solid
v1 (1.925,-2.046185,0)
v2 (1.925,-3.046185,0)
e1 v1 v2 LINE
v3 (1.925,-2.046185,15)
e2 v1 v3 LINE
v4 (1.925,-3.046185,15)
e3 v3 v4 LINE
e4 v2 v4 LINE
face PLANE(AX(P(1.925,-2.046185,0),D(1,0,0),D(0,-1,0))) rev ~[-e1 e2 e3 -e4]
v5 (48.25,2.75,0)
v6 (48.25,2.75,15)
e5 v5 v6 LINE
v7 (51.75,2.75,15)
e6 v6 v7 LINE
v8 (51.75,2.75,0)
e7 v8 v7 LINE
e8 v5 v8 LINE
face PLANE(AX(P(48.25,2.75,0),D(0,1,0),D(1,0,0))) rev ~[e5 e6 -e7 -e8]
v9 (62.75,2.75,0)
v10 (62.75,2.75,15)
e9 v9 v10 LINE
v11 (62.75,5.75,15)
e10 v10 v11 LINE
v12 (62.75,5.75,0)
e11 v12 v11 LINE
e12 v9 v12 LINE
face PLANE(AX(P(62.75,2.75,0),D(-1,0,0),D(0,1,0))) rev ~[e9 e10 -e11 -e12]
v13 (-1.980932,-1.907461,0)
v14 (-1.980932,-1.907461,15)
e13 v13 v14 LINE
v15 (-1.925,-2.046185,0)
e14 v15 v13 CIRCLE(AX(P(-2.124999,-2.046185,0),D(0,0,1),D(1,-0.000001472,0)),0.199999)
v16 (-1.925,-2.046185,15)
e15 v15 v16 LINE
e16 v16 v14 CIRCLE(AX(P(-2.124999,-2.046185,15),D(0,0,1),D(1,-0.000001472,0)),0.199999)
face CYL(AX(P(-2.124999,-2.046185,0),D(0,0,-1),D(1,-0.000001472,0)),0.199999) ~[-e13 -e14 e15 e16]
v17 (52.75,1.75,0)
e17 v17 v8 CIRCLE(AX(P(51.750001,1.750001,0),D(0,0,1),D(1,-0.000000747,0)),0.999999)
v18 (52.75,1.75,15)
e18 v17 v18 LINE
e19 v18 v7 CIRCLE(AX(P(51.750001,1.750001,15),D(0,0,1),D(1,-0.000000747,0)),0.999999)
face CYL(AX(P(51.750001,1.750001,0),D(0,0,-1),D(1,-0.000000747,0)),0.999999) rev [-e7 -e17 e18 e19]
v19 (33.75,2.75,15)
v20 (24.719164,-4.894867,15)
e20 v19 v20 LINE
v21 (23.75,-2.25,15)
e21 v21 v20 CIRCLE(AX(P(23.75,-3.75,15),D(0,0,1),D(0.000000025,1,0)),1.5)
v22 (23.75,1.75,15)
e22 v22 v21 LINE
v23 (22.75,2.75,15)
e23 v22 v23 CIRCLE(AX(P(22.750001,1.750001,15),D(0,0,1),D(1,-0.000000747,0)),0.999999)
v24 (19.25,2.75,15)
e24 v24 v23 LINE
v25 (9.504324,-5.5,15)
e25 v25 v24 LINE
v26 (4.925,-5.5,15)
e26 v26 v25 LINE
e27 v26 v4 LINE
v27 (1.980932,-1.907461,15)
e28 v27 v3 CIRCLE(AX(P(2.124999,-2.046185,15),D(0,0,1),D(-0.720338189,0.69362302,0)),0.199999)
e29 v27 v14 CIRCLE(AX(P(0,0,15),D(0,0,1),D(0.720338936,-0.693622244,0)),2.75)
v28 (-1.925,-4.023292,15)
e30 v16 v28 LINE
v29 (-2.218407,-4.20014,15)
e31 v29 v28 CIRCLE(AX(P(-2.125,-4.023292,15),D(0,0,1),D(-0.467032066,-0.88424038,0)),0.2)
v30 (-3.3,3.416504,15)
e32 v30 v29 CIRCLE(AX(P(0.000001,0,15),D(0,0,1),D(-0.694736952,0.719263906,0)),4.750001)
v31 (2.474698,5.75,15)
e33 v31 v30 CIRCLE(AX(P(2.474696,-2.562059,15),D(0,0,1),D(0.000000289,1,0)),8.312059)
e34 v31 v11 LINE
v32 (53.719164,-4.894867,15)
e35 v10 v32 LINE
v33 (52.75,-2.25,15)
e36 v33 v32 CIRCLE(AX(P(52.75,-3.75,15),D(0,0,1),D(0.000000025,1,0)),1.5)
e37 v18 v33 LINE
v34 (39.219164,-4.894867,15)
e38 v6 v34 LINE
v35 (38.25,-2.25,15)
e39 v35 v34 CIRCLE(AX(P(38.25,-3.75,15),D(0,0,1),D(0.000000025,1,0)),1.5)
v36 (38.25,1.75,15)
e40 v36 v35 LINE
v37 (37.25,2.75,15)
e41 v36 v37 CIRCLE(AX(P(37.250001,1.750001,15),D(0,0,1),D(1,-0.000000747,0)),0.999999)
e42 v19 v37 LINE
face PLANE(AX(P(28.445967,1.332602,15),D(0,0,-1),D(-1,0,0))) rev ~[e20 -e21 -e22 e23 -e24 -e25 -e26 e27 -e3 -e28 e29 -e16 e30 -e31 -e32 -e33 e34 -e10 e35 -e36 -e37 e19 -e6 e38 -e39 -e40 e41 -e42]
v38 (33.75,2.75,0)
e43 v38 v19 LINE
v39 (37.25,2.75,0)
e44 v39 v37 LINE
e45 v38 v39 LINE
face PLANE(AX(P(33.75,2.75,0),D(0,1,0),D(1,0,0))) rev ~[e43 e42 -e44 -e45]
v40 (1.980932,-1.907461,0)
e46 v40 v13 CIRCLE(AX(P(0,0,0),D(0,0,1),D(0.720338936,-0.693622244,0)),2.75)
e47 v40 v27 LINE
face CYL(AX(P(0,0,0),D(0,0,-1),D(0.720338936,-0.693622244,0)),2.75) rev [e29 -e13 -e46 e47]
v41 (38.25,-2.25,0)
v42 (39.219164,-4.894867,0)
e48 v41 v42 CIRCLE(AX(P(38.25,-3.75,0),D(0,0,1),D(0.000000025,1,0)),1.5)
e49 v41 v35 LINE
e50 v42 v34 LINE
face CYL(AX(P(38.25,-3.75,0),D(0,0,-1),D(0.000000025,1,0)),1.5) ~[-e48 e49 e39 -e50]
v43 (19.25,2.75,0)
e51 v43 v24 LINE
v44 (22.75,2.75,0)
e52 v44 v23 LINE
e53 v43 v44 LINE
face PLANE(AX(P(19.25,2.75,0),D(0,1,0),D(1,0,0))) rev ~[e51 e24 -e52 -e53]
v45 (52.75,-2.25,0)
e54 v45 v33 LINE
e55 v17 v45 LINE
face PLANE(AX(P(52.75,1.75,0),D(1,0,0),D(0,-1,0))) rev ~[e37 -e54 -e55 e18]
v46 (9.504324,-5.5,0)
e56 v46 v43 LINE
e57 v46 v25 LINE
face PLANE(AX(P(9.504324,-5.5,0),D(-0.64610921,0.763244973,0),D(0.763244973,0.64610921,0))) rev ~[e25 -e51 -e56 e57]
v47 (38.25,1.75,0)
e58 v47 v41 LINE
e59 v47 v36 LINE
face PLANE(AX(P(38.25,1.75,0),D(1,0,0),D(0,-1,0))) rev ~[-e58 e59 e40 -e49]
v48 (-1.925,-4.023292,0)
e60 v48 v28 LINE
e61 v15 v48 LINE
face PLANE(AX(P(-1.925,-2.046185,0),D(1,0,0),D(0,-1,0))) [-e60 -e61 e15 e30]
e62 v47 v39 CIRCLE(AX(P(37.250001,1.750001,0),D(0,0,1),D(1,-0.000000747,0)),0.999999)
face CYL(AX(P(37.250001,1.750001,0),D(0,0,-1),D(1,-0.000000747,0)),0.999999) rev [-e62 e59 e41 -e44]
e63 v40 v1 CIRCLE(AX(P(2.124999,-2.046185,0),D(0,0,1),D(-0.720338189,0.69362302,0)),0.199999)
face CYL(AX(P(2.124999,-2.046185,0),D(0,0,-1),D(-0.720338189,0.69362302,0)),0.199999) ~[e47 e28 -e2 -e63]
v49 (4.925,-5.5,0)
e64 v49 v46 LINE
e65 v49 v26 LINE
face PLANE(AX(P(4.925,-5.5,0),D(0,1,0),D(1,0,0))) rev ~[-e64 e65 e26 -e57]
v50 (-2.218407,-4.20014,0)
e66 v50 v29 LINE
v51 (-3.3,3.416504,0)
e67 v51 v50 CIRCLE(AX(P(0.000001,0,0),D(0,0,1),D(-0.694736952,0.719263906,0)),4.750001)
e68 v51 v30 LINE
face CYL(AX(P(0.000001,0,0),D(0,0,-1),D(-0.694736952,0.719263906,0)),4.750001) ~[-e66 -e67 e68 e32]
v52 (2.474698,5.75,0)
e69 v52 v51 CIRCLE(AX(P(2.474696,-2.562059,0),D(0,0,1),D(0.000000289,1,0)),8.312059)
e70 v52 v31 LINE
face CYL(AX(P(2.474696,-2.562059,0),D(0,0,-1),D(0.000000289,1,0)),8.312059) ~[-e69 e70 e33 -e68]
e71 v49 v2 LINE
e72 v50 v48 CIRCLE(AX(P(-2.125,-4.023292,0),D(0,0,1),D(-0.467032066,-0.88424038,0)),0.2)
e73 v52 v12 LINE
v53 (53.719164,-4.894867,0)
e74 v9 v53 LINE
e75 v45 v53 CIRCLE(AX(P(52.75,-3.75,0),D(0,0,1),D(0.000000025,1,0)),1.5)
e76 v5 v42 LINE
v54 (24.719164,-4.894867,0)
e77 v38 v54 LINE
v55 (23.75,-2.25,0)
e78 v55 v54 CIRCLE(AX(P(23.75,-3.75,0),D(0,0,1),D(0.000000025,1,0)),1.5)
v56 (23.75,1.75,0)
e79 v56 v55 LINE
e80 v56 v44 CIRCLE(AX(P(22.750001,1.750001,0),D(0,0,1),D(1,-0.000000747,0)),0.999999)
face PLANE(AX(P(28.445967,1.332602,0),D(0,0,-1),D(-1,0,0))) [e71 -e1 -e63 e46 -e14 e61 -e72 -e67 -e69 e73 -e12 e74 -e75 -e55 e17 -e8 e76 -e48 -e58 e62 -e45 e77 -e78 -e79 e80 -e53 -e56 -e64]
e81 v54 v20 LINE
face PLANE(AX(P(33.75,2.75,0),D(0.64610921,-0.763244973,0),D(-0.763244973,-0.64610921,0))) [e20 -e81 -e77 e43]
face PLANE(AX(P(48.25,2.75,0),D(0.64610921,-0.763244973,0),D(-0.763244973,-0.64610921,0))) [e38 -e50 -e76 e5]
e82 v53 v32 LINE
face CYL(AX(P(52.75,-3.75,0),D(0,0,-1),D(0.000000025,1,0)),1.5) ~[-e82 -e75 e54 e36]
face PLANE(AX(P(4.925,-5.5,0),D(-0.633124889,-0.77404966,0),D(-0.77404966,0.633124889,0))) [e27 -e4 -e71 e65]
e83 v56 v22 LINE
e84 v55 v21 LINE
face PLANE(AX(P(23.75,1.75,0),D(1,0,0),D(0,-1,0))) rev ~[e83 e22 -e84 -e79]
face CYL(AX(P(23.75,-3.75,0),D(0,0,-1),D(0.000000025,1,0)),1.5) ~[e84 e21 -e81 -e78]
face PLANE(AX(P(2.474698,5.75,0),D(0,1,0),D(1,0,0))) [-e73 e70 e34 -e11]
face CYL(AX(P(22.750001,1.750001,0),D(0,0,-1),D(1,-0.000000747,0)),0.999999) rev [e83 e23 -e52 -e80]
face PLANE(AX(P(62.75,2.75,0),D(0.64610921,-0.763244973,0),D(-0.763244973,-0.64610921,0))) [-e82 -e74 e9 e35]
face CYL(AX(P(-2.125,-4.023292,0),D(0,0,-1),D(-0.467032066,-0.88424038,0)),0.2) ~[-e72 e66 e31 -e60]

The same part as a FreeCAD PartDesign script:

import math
import FreeCAD as App
import Part
import Sketcher
from FreeCAD import Vector
Q = App.Units.Quantity

doc = App.newDocument("Part")
body = doc.addObject("PartDesign::Body", "Body")

# Sketch on XY plane
sketch1 = body.newObject("Sketcher::SketchObject", "Sketch")
sketch1.AttachmentSupport = (doc.getObject("XY_Plane"), [""])
sketch1.MapMode = "FlatFace"
sketch1.addGeometry([
    Part.ArcOfCircle(Part.Circle(Vector(0, 0, 0), Vector(0, 0, 1), 2.75), math.radians(-44), math.radians(224)),  # 0
    Part.ArcOfCircle(Part.Circle(Vector(2.12, -2.05, 0), Vector(0, 0, 1), 0.2), math.radians(136), math.radians(180)),  # 1
    Part.LineSegment(Vector(1.93, -2.05, 0), Vector(1.93, -3.05, 0)),  # 2
    Part.LineSegment(Vector(1.93, -3.05, 0), Vector(4.92, -5.5, 0)),  # 3
    Part.LineSegment(Vector(4.92, -5.5, 0), Vector(9.5, -5.5, 0)),  # 4
    Part.LineSegment(Vector(9.5, -5.5, 0), Vector(19.25, 2.75, 0)),  # 5
    Part.LineSegment(Vector(19.25, 2.75, 0), Vector(22.75, 2.75, 0)),  # 6
    Part.ArcOfCircle(Part.Circle(Vector(22.75, 1.75, 0), Vector(0, 0, 1), 1), math.radians(0), math.radians(90)),  # 7
    Part.LineSegment(Vector(23.75, 1.75, 0), Vector(23.75, -2.25, 0)),  # 8
    Part.ArcOfCircle(Part.Circle(Vector(23.75, -3.75, 0), Vector(0, 0, 1), 1.5), math.radians(90), math.radians(310)),  # 9
    Part.LineSegment(Vector(24.72, -4.89, 0), Vector(33.75, 2.75, 0)),  # 10
    Part.LineSegment(Vector(33.75, 2.75, 0), Vector(37.25, 2.75, 0)),  # 11
    Part.ArcOfCircle(Part.Circle(Vector(37.25, 1.75, 0), Vector(0, 0, 1), 1), math.radians(0), math.radians(90)),  # 12
    Part.LineSegment(Vector(38.25, 1.75, 0), Vector(38.25, -2.25, 0)),  # 13
    Part.ArcOfCircle(Part.Circle(Vector(38.25, -3.75, 0), Vector(0, 0, 1), 1.5), math.radians(90), math.radians(310)),  # 14
    Part.LineSegment(Vector(39.22, -4.89, 0), Vector(48.25, 2.75, 0)),  # 15
    Part.LineSegment(Vector(48.25, 2.75, 0), Vector(51.75, 2.75, 0)),  # 16
    Part.ArcOfCircle(Part.Circle(Vector(51.75, 1.75, 0), Vector(0, 0, 1), 1), math.radians(0), math.radians(90)),  # 17
    Part.LineSegment(Vector(52.75, 1.75, 0), Vector(52.75, -2.25, 0)),  # 18
    Part.ArcOfCircle(Part.Circle(Vector(52.75, -3.75, 0), Vector(0, 0, 1), 1.5), math.radians(90), math.radians(310)),  # 19
    Part.LineSegment(Vector(53.72, -4.89, 0), Vector(62.75, 2.75, 0)),  # 20
    Part.LineSegment(Vector(62.75, 2.75, 0), Vector(62.75, 5.75, 0)),  # 21
    Part.LineSegment(Vector(62.75, 5.75, 0), Vector(2.47, 5.75, 0)),  # 22
    Part.ArcOfCircle(Part.Circle(Vector(2.47, -2.56, 0), Vector(0, 0, 1), 8.31), math.radians(90), math.radians(134)),  # 23
    Part.ArcOfCircle(Part.Circle(Vector(0, 0, 0), Vector(0, 0, 1), 4.75), math.radians(134), math.radians(242)),  # 24
    Part.ArcOfCircle(Part.Circle(Vector(-2.13, -4.02, 0), Vector(0, 0, 1), 0.2), math.radians(-118), math.radians(0)),  # 25
    Part.LineSegment(Vector(-1.93, -4.02, 0), Vector(-1.93, -2.05, 0)),  # 26
    Part.ArcOfCircle(Part.Circle(Vector(-2.12, -2.05, 0), Vector(0, 0, 1), 0.2), math.radians(0), math.radians(44)),  # 27
], False)
sketch1.addConstraint([
    Sketcher.Constraint("Tangent", 0, 1, 1, 1),
    Sketcher.Constraint("Tangent", 1, 2, 2, 1),
    Sketcher.Constraint("Coincident", 2, 2, 3, 1),
    Sketcher.Constraint("Coincident", 3, 2, 4, 1),
    Sketcher.Constraint("Coincident", 4, 2, 5, 1),
    Sketcher.Constraint("Coincident", 5, 2, 6, 1),
    Sketcher.Constraint("Tangent", 6, 2, 7, 2),
    Sketcher.Constraint("Tangent", 7, 1, 8, 1),
    Sketcher.Constraint("Coincident", 8, 2, 9, 1),
    Sketcher.Constraint("Tangent", 9, 2, 10, 1),
    Sketcher.Constraint("Coincident", 10, 2, 11, 1),
    Sketcher.Constraint("Tangent", 11, 2, 12, 2),
    Sketcher.Constraint("Tangent", 12, 1, 13, 1),
    Sketcher.Constraint("Coincident", 13, 2, 14, 1),
    Sketcher.Constraint("Tangent", 14, 2, 15, 1),
    Sketcher.Constraint("Coincident", 15, 2, 16, 1),
    Sketcher.Constraint("Tangent", 16, 2, 17, 2),
    Sketcher.Constraint("Tangent", 17, 1, 18, 1),
    Sketcher.Constraint("Coincident", 18, 2, 19, 1),
    Sketcher.Constraint("Tangent", 19, 2, 20, 1),
    Sketcher.Constraint("Coincident", 20, 2, 21, 1),
    Sketcher.Constraint("Coincident", 21, 2, 22, 1),
    Sketcher.Constraint("Tangent", 22, 2, 23, 1),
    Sketcher.Constraint("Tangent", 23, 2, 24, 1),
    Sketcher.Constraint("Tangent", 24, 2, 25, 1),
    Sketcher.Constraint("Coincident", 25, 2, 26, 1),
    Sketcher.Constraint("Tangent", 26, 2, 27, 1),
    Sketcher.Constraint("Tangent", 27, 2, 0, 2),
    Sketcher.Constraint("Vertical", 2),
    Sketcher.Constraint("Horizontal", 4),
    Sketcher.Constraint("Horizontal", 6),
    Sketcher.Constraint("Vertical", 8),
    Sketcher.Constraint("Horizontal", 11),
    Sketcher.Constraint("Vertical", 13),
    Sketcher.Constraint("Horizontal", 16),
    Sketcher.Constraint("Vertical", 18),
    Sketcher.Constraint("Vertical", 21),
    Sketcher.Constraint("Horizontal", 22),
    Sketcher.Constraint("Vertical", 26),
    Sketcher.Constraint("Coincident", 0, 3, -1, 1),
    Sketcher.Constraint("Coincident", 24, 3, -1, 1),
    Sketcher.Constraint("Equal", 7, 12),
    Sketcher.Constraint("Equal", 9, 14),
    Sketcher.Constraint("Equal", 12, 17),
    Sketcher.Constraint("Equal", 14, 19),
    Sketcher.Constraint("Equal", 1, 25),
    Sketcher.Constraint("Equal", 25, 27),
    Sketcher.Constraint("Parallel", 5, 10),
    Sketcher.Constraint("Parallel", 10, 15),
    Sketcher.Constraint("Parallel", 15, 20),
    Sketcher.Constraint("Horizontal", 7, 3, 12, 3),
    Sketcher.Constraint("Horizontal", 9, 3, 14, 3),
    Sketcher.Constraint("Horizontal", 12, 3, 17, 3),
    Sketcher.Constraint("Horizontal", 14, 3, 19, 3),
    Sketcher.Constraint("Horizontal", 1, 3, 27, 3),
    Sketcher.Constraint("Horizontal", 16, 2, 20, 2),
    Sketcher.Constraint("Vertical", 9, 3, 7, 1),
    Sketcher.Constraint("Vertical", 14, 3, 12, 1),
    Sketcher.Constraint("Vertical", 19, 3, 17, 1),
    Sketcher.Constraint("Equal", 6, 11),
    Sketcher.Constraint("Equal", 11, 16),
    Sketcher.Constraint("Radius", 7, Q("0.999999 mm")),
    Sketcher.Constraint("Radius", 1, Q("0.199999 mm")),
    Sketcher.Constraint("Radius", 9, Q("1.5 mm")),
    Sketcher.Constraint("DistanceY", 2, 2, 2, 1, Q("1 mm")),
    Sketcher.Constraint("DistanceY", 8, 2, 8, 1, Q("4 mm")),
    Sketcher.Constraint("DistanceY", 21, 1, 21, 2, Q("3 mm")),
    Sketcher.Constraint("Radius", 0, Q("2.75 mm")),
    Sketcher.Constraint("Radius", 24, Q("4.750001 mm")),
    Sketcher.Constraint("DistanceX", 6, 1, 6, 2, Q("3.5 mm")),
    Sketcher.Constraint("DistanceX", 9, 3, 17, 3, Q("28.000001 mm")),
    Sketcher.Constraint("DistanceX", 2, 2, 3, 2, Q("3 mm")),
    Sketcher.Constraint("DistanceY", 3, 2, -1, 1, Q("5.5 mm")),
    Sketcher.Constraint("DistanceX", 23, 2, -1, 1, Q("3.3 mm")),
    Sketcher.Constraint("DistanceX", -1, 1, 7, 3, Q("22.750001 mm")),
    Sketcher.Constraint("DistanceY", -1, 1, 7, 3, Q("1.750001 mm")),
    Sketcher.Constraint("DistanceX", 25, 3, 1, 3, Q("4.249999 mm")),
    Sketcher.Constraint("DistanceY", 26, 1, 26, 2, Q("1.977107 mm")),
])
pad1 = body.newObject("PartDesign::Pad", "Pad")
pad1.Profile = sketch1
pad1.Length = 15

doc.recompute()
